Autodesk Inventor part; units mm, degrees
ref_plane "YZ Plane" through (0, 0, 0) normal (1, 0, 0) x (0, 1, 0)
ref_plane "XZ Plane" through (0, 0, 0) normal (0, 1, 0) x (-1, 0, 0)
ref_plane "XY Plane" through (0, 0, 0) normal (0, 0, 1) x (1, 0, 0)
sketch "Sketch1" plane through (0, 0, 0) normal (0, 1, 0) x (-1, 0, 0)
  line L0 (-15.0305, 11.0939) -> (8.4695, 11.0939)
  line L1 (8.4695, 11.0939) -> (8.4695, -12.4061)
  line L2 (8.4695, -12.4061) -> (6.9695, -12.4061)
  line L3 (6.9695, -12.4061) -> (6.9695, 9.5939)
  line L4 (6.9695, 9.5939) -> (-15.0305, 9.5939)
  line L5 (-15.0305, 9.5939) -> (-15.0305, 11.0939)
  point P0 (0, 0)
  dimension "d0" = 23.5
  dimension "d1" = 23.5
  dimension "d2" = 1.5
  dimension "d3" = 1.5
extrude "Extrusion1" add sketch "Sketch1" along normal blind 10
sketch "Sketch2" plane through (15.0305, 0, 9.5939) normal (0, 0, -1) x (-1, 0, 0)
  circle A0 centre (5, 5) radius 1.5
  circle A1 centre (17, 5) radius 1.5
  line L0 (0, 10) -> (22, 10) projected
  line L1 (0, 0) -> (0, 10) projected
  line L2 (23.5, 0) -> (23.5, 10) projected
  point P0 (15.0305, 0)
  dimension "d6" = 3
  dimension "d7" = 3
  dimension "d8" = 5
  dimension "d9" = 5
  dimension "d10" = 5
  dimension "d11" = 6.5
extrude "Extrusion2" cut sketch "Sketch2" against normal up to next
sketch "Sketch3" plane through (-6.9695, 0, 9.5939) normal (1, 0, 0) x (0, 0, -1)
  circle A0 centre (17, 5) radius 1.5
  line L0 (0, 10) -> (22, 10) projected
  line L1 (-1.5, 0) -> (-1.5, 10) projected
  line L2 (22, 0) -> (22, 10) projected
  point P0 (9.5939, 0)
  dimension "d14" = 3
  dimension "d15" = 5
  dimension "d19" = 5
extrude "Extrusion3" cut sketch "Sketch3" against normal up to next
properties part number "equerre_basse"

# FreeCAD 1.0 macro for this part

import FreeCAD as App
import Part
import Sketcher
from FreeCAD import Vector
Q = App.Units.Quantity


def add_polygon(sketch, points):
    """Adds a closed chain of lines whose ends are joined by coincident constraints."""
    first, n = sketch.GeometryCount, len(points)
    for a, b in zip(points, points[1:] + points[:1]):
        sketch.addGeometry(Part.LineSegment(App.Vector(*a, 0), App.Vector(*b, 0)), False)
    for i in range(n):
        sketch.addConstraint(Sketcher.Constraint("Coincident", first + i, 2, first + (i + 1) % n, 1))

doc = App.newDocument("Part")
body = doc.addObject("PartDesign::Body", "Body")

sketch1 = body.newObject("Sketcher::SketchObject", "Sketch")
sketch1.AttachmentSupport = (doc.getObject("XZ_Plane"), [""])
sketch1.MapMode = "FlatFace"
add_polygon(sketch1, [(-8.4695, 11.0939), (15.0305, 11.0939), (15.0305, 9.5939), (-6.9695, 9.5939), (-6.9695, -12.4061), (-8.4695, -12.4061)])
sketch1.addConstraint([
    Sketcher.Constraint("Horizontal", 0),
    Sketcher.Constraint("Vertical", 1),
    Sketcher.Constraint("Horizontal", 2),
    Sketcher.Constraint("Vertical", 3),
    Sketcher.Constraint("Horizontal", 4),
    Sketcher.Constraint("Vertical", 5),
    Sketcher.Constraint("Equal", 4, 1),
    Sketcher.Constraint("Equal", 2, 3),
    Sketcher.Constraint("DistanceX", 0, 1, 0, 2, Q("23.5 mm")),
    Sketcher.Constraint("DistanceX", 4, 2, 4, 1, Q("1.5 mm")),
    Sketcher.Constraint("DistanceY", -1, 1, 0, 2, Q("11.094 mm")),
    Sketcher.Constraint("DistanceX", -1, 1, 0, 2, Q("15.0305 mm")),
])
pad1 = body.newObject("PartDesign::Pad", "Pad")
pad1.Profile = sketch1
pad1.Length = 10
pad1.Reversed = True

sketch2 = body.newObject("Sketcher::SketchObject", "Sketch001")
sketch2.AttachmentSupport = (doc.getObject("XY_Plane"), [""])
sketch2.MapMode = "FlatFace"
sketch2.AttachmentOffset = App.Placement(Vector(0, 0, 9.5939), App.Rotation())
sketch2.addGeometry([
    Part.Circle(Vector(10.0305, 5, 0), Vector(0, 0, 1), 1.5),
    Part.Circle(Vector(-1.9695, 5, 0), Vector(0, 0, 1), 1.5),
], False)
sketch2.addConstraint([
    Sketcher.Constraint("Equal", 0, 1),
    Sketcher.Constraint("Horizontal", 0, 3, 1, 3),
    Sketcher.Constraint("Diameter", 0, Q("3 mm")),
    Sketcher.Constraint("DistanceY", -1, 1, 0, 3, Q("5 mm")),
    Sketcher.Constraint("DistanceX", 1, 3, 0, 3, Q("12 mm")),
    Sketcher.Constraint("DistanceX", -1, 1, 0, 3, Q("10.0305 mm")),
])
pocket1 = body.newObject("PartDesign::Pocket", "Pocket")
pocket1.Profile = sketch2
pocket1.Type = "UpToFirst"
pocket1.Reversed = True

sketch3 = body.newObject("Sketcher::SketchObject", "Sketch002")
sketch3.AttachmentSupport = (doc.getObject("YZ_Plane"), [""])
sketch3.MapMode = "FlatFace"
sketch3.AttachmentOffset = App.Placement(Vector(0, 0, -6.9695), App.Rotation())
sketch3.addGeometry(Part.Circle(Vector(5, -7.4061, 0), Vector(0, 0, 1), 1.5), False)
sketch3.addConstraint([
    Sketcher.Constraint("Diameter", 0, Q("3 mm")),
    Sketcher.Constraint("DistanceX", -1, 1, 0, 3, Q("5 mm")),
    Sketcher.Constraint("DistanceY", 0, 3, -1, 1, Q("7.406 mm")),
])
pocket2 = body.newObject("PartDesign::Pocket", "Pocket001")
pocket2.Profile = sketch3
pocket2.Type = "UpToFirst"

doc.recompute()
